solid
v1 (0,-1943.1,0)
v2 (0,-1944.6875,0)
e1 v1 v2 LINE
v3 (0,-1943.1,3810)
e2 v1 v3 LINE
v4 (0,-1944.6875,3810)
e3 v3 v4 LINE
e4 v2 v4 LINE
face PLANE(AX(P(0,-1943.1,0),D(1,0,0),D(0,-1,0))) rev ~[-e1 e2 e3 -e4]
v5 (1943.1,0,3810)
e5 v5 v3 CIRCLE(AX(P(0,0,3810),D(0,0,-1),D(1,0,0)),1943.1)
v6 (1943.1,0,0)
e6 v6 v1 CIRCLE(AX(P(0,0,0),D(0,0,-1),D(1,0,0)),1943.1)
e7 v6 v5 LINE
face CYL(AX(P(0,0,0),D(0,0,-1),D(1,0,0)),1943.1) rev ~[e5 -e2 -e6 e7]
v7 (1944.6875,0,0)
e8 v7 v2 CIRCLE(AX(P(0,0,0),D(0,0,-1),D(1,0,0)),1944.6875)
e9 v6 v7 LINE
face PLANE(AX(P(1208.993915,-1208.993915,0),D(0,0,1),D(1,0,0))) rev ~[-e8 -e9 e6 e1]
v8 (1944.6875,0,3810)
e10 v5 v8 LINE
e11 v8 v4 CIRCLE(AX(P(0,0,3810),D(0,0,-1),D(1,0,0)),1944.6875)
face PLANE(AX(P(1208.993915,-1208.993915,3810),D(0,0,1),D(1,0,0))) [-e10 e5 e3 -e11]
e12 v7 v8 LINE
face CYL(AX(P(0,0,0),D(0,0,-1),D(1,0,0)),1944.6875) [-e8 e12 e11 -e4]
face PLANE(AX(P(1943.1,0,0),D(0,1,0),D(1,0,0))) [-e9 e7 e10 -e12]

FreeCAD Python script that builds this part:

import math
import FreeCAD as App
import Part
import Sketcher

V = App.Vector
Q = App.Units.Quantity

doc = App.newDocument("Part")
params = doc.addObject("Spreadsheet::Sheet", "Params")
for row, (alias, value) in enumerate([
    ("sketch1_radius", "76.5 in"),
    ("sketch1_radius2", "76.5625 in"),
    ("pad1_length", "150 in"),
], start=1):
    params.set(f"A{row}", alias)
    params.set(f"B{row}", "=" + value)
    params.setAlias(f"B{row}", alias)

body = doc.addObject("PartDesign::Body", "Body")

# Sketch on XY plane
sketch1 = body.newObject("Sketcher::SketchObject", "Sketch")
sketch1.AttachmentSupport = (doc.getObject("XY_Plane"), [""])
sketch1.MapMode = "FlatFace"
sketch1.addGeometry(Part.ArcOfCircle(Part.Circle(V(0, 0, 0), V(0, 0, 1), 1943.1), math.radians(-90), math.radians(0)), False)
sketch1.addGeometry(Part.LineSegment(V(0, -1943.1, 0), V(0, -1944.7, 0)), False)
sketch1.addGeometry(Part.ArcOfCircle(Part.Circle(V(0, 0, 0), V(0, 0, 1), 1944.7), math.radians(-90), math.radians(0)), False)
sketch1.addGeometry(Part.LineSegment(V(1944.7, 0, 0), V(1943.1, 0, 0)), False)
sketch1.addConstraint(Sketcher.Constraint("Coincident", 0, 1, 1, 1))
sketch1.addConstraint(Sketcher.Constraint("Coincident", 1, 2, 2, 1))
sketch1.addConstraint(Sketcher.Constraint("Coincident", 2, 2, 3, 1))
sketch1.addConstraint(Sketcher.Constraint("Coincident", 3, 2, 0, 2))
sketch1.addConstraint(Sketcher.Constraint("Vertical", 1))
sketch1.addConstraint(Sketcher.Constraint("Horizontal", 3))
sketch1.addConstraint(Sketcher.Constraint("Coincident", 0, 3, -1, 1))
sketch1.addConstraint(Sketcher.Constraint("Coincident", 2, 3, -1, 1))
sketch1.addConstraint(Sketcher.Constraint("PointOnObject", 1, 2, -2))
sketch1.addConstraint(Sketcher.Constraint("PointOnObject", 3, 2, -1))
sketch1.addConstraint(Sketcher.Constraint("Radius", 0, Q("76.5 in")))
sketch1.addConstraint(Sketcher.Constraint("Radius", 2, Q("76.5625 in")))
sketch1.setExpression("Constraints[10]", "Params.sketch1_radius")
sketch1.setExpression("Constraints[11]", "Params.sketch1_radius2")
pad1 = body.newObject("PartDesign::Pad", "Pad")
pad1.Profile = sketch1
pad1.setExpression("Length", "Params.pad1_length")

doc.recompute()
